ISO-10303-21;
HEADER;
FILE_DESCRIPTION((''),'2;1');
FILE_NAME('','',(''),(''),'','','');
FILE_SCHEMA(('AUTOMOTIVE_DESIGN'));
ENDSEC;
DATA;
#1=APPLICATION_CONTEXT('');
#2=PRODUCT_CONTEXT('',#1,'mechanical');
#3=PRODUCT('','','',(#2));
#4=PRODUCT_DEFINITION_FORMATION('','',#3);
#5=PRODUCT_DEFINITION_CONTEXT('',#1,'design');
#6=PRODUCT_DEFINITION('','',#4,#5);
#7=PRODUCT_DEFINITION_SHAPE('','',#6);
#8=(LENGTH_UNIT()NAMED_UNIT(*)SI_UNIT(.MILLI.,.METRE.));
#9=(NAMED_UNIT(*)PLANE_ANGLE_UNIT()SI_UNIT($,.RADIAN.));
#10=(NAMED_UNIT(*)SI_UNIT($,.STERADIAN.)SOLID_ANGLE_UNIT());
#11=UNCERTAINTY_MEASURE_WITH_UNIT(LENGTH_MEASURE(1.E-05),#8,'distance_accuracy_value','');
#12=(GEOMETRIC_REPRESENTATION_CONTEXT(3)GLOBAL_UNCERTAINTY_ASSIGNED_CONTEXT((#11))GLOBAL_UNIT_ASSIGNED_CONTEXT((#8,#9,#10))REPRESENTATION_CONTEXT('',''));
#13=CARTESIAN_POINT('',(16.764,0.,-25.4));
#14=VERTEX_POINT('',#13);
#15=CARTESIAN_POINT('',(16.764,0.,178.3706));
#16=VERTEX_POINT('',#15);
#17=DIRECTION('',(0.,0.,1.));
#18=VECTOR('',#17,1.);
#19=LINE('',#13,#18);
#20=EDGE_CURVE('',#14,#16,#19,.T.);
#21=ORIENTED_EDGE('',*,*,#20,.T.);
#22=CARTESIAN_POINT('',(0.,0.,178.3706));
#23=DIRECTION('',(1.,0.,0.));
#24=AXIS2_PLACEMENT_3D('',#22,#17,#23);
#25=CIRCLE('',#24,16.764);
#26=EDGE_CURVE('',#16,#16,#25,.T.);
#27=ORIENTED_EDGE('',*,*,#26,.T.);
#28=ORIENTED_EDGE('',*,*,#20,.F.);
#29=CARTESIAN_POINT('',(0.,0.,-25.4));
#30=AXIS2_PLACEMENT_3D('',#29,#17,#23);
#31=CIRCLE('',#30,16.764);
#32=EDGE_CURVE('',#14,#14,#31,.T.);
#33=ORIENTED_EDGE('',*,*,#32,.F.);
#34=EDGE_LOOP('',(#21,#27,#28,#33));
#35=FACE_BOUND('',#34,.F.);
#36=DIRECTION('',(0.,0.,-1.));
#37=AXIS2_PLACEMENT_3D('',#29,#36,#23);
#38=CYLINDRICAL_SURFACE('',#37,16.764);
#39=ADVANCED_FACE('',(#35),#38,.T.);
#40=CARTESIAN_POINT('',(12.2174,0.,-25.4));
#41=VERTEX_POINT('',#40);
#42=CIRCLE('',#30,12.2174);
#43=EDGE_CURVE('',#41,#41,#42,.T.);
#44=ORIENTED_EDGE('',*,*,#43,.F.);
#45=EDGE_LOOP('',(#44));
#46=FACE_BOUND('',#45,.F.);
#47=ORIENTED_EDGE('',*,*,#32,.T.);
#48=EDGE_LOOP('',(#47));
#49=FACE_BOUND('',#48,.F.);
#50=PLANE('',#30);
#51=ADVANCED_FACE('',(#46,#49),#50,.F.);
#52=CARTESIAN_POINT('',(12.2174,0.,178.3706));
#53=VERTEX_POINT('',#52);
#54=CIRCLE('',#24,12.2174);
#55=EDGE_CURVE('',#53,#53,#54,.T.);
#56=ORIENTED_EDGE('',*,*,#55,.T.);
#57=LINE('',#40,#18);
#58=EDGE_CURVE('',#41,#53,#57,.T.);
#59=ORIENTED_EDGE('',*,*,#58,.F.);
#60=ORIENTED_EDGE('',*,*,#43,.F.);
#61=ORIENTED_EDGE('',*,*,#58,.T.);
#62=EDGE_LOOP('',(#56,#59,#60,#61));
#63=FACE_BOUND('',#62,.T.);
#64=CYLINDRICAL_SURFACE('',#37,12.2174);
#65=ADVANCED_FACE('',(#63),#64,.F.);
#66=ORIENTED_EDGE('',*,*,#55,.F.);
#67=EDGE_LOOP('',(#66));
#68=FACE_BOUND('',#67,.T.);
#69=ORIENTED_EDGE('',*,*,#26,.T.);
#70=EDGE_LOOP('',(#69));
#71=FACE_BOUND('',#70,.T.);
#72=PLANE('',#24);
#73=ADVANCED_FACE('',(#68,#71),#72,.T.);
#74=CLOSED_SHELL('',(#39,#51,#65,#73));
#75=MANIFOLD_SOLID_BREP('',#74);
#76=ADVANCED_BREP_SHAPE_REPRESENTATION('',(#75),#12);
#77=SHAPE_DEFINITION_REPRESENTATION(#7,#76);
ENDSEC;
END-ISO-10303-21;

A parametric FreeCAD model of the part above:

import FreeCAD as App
import Part
import Sketcher
from FreeCAD import Vector
Q = App.Units.Quantity

doc = App.newDocument("Part")
body = doc.addObject("PartDesign::Body", "Body")

# Sketch on XY plane
sketch1 = body.newObject("Sketcher::SketchObject", "Sketch")
sketch1.AttachmentSupport = (doc.getObject("XY_Plane"), [""])
sketch1.MapMode = "FlatFace"
sketch1.AttachmentOffset = App.Placement(Vector(0, 0, -1 * 25.4), App.Rotation())
sketch1.addGeometry([
    Part.Circle(Vector(0, 0, 0), Vector(0, 0, 1), 16.764),
    Part.Circle(Vector(0, 0, 0), Vector(0, 0, 1), 12.2174),
], False)
sketch1.addConstraint([
    Sketcher.Constraint("Coincident", 0, 3, -1, 1),
    Sketcher.Constraint("Coincident", 1, 3, -1, 1),
    Sketcher.Constraint("Diameter", 0, Q("1.32 in")),
    Sketcher.Constraint("Diameter", 1, Q("0.962 in")),
])
pad1 = body.newObject("PartDesign::Pad", "Pad")
pad1.Profile = sketch1
pad1.Length = 203.7706

doc.recompute()
